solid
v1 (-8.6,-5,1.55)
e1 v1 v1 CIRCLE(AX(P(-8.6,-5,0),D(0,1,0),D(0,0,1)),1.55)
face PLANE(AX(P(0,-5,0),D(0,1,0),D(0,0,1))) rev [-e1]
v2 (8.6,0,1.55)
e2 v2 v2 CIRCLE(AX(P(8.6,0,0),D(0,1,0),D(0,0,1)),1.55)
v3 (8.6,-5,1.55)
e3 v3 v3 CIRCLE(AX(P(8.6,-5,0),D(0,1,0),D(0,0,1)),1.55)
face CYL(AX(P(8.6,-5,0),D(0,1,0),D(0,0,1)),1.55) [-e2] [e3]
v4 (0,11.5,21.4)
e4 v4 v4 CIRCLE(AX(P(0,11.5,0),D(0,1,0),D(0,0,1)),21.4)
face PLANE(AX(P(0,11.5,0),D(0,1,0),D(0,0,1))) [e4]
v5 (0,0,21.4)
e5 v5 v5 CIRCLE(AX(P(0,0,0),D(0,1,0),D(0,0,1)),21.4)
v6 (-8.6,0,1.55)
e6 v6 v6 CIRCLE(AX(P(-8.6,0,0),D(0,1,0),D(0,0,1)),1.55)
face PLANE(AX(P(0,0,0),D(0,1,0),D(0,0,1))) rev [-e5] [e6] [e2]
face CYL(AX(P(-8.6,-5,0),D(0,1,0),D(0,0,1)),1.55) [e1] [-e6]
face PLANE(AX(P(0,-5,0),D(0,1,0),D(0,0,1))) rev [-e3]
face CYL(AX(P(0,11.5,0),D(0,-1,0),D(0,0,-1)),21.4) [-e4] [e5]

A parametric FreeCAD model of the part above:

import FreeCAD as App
import Part
import Sketcher

V = App.Vector
Q = App.Units.Quantity

doc = App.newDocument("Part")
body = doc.addObject("PartDesign::Body", "Body")

sketch1 = body.newObject("Sketcher::SketchObject", "Sketch")
sketch1.AttachmentSupport = (doc.getObject("XZ_Plane"), [""])
sketch1.MapMode = "FlatFace"
sketch1.addGeometry(Part.Circle(V(0, 0, 0), V(0, 0, 1), 21.4), False)
sketch1.addGeometry(Part.Circle(V(-8.6, 0, 0), V(0, 0, 1), 1.55), False)
sketch1.addGeometry(Part.Circle(V(8.6, 0, 0), V(0, 0, 1), 1.55), False)
sketch1.addConstraint(Sketcher.Constraint("Coincident", 0, 3, -1, 1))
sketch1.addConstraint(Sketcher.Constraint("Equal", 1, 2))
sketch1.addConstraint(Sketcher.Constraint("Symmetric", 1, 3, 2, 3, -1, 1))
sketch1.addConstraint(Sketcher.Constraint("PointOnObject", 1, 3, -1))
sketch1.addConstraint(Sketcher.Constraint("Diameter", 0, Q("42.8 mm")))
sketch1.addConstraint(Sketcher.Constraint("Diameter", 1, Q("3.1 mm")))
sketch1.addConstraint(Sketcher.Constraint("DistanceX", 1, 3, -1, 1, Q("8.6 mm")))
pad1 = body.newObject("PartDesign::Pad", "Pad")
pad1.Profile = sketch1
pad1.Length = 11.5
pad1.Reversed = True

sketch2 = body.newObject("Sketcher::SketchObject", "Sketch001")
sketch2.AttachmentSupport = (doc.getObject("XZ_Plane"), [""])
sketch2.MapMode = "FlatFace"
sketch2.addGeometry(Part.Circle(V(-8.6, 0, 0), V(0, 0, 1), 1.55), False)
sketch2.addGeometry(Part.Circle(V(8.6, 0, 0), V(0, 0, 1), 1.55), False)
sketch2.addConstraint(Sketcher.Constraint("Equal", 0, 1))
sketch2.addConstraint(Sketcher.Constraint("Symmetric", 0, 3, 1, 3, -1, 1))
sketch2.addConstraint(Sketcher.Constraint("PointOnObject", 0, 3, -1))
sketch2.addConstraint(Sketcher.Constraint("Diameter", 0, Q("3.1 mm")))
sketch2.addConstraint(Sketcher.Constraint("DistanceX", 0, 3, -1, 1, Q("8.6 mm")))
pad2 = body.newObject("PartDesign::Pad", "Pad001")
pad2.Profile = sketch2
pad2.Type = "TwoLengths"
pad2.Length = 11.5
pad2.Length2 = 5
pad2.Reversed = True

doc.recompute()
